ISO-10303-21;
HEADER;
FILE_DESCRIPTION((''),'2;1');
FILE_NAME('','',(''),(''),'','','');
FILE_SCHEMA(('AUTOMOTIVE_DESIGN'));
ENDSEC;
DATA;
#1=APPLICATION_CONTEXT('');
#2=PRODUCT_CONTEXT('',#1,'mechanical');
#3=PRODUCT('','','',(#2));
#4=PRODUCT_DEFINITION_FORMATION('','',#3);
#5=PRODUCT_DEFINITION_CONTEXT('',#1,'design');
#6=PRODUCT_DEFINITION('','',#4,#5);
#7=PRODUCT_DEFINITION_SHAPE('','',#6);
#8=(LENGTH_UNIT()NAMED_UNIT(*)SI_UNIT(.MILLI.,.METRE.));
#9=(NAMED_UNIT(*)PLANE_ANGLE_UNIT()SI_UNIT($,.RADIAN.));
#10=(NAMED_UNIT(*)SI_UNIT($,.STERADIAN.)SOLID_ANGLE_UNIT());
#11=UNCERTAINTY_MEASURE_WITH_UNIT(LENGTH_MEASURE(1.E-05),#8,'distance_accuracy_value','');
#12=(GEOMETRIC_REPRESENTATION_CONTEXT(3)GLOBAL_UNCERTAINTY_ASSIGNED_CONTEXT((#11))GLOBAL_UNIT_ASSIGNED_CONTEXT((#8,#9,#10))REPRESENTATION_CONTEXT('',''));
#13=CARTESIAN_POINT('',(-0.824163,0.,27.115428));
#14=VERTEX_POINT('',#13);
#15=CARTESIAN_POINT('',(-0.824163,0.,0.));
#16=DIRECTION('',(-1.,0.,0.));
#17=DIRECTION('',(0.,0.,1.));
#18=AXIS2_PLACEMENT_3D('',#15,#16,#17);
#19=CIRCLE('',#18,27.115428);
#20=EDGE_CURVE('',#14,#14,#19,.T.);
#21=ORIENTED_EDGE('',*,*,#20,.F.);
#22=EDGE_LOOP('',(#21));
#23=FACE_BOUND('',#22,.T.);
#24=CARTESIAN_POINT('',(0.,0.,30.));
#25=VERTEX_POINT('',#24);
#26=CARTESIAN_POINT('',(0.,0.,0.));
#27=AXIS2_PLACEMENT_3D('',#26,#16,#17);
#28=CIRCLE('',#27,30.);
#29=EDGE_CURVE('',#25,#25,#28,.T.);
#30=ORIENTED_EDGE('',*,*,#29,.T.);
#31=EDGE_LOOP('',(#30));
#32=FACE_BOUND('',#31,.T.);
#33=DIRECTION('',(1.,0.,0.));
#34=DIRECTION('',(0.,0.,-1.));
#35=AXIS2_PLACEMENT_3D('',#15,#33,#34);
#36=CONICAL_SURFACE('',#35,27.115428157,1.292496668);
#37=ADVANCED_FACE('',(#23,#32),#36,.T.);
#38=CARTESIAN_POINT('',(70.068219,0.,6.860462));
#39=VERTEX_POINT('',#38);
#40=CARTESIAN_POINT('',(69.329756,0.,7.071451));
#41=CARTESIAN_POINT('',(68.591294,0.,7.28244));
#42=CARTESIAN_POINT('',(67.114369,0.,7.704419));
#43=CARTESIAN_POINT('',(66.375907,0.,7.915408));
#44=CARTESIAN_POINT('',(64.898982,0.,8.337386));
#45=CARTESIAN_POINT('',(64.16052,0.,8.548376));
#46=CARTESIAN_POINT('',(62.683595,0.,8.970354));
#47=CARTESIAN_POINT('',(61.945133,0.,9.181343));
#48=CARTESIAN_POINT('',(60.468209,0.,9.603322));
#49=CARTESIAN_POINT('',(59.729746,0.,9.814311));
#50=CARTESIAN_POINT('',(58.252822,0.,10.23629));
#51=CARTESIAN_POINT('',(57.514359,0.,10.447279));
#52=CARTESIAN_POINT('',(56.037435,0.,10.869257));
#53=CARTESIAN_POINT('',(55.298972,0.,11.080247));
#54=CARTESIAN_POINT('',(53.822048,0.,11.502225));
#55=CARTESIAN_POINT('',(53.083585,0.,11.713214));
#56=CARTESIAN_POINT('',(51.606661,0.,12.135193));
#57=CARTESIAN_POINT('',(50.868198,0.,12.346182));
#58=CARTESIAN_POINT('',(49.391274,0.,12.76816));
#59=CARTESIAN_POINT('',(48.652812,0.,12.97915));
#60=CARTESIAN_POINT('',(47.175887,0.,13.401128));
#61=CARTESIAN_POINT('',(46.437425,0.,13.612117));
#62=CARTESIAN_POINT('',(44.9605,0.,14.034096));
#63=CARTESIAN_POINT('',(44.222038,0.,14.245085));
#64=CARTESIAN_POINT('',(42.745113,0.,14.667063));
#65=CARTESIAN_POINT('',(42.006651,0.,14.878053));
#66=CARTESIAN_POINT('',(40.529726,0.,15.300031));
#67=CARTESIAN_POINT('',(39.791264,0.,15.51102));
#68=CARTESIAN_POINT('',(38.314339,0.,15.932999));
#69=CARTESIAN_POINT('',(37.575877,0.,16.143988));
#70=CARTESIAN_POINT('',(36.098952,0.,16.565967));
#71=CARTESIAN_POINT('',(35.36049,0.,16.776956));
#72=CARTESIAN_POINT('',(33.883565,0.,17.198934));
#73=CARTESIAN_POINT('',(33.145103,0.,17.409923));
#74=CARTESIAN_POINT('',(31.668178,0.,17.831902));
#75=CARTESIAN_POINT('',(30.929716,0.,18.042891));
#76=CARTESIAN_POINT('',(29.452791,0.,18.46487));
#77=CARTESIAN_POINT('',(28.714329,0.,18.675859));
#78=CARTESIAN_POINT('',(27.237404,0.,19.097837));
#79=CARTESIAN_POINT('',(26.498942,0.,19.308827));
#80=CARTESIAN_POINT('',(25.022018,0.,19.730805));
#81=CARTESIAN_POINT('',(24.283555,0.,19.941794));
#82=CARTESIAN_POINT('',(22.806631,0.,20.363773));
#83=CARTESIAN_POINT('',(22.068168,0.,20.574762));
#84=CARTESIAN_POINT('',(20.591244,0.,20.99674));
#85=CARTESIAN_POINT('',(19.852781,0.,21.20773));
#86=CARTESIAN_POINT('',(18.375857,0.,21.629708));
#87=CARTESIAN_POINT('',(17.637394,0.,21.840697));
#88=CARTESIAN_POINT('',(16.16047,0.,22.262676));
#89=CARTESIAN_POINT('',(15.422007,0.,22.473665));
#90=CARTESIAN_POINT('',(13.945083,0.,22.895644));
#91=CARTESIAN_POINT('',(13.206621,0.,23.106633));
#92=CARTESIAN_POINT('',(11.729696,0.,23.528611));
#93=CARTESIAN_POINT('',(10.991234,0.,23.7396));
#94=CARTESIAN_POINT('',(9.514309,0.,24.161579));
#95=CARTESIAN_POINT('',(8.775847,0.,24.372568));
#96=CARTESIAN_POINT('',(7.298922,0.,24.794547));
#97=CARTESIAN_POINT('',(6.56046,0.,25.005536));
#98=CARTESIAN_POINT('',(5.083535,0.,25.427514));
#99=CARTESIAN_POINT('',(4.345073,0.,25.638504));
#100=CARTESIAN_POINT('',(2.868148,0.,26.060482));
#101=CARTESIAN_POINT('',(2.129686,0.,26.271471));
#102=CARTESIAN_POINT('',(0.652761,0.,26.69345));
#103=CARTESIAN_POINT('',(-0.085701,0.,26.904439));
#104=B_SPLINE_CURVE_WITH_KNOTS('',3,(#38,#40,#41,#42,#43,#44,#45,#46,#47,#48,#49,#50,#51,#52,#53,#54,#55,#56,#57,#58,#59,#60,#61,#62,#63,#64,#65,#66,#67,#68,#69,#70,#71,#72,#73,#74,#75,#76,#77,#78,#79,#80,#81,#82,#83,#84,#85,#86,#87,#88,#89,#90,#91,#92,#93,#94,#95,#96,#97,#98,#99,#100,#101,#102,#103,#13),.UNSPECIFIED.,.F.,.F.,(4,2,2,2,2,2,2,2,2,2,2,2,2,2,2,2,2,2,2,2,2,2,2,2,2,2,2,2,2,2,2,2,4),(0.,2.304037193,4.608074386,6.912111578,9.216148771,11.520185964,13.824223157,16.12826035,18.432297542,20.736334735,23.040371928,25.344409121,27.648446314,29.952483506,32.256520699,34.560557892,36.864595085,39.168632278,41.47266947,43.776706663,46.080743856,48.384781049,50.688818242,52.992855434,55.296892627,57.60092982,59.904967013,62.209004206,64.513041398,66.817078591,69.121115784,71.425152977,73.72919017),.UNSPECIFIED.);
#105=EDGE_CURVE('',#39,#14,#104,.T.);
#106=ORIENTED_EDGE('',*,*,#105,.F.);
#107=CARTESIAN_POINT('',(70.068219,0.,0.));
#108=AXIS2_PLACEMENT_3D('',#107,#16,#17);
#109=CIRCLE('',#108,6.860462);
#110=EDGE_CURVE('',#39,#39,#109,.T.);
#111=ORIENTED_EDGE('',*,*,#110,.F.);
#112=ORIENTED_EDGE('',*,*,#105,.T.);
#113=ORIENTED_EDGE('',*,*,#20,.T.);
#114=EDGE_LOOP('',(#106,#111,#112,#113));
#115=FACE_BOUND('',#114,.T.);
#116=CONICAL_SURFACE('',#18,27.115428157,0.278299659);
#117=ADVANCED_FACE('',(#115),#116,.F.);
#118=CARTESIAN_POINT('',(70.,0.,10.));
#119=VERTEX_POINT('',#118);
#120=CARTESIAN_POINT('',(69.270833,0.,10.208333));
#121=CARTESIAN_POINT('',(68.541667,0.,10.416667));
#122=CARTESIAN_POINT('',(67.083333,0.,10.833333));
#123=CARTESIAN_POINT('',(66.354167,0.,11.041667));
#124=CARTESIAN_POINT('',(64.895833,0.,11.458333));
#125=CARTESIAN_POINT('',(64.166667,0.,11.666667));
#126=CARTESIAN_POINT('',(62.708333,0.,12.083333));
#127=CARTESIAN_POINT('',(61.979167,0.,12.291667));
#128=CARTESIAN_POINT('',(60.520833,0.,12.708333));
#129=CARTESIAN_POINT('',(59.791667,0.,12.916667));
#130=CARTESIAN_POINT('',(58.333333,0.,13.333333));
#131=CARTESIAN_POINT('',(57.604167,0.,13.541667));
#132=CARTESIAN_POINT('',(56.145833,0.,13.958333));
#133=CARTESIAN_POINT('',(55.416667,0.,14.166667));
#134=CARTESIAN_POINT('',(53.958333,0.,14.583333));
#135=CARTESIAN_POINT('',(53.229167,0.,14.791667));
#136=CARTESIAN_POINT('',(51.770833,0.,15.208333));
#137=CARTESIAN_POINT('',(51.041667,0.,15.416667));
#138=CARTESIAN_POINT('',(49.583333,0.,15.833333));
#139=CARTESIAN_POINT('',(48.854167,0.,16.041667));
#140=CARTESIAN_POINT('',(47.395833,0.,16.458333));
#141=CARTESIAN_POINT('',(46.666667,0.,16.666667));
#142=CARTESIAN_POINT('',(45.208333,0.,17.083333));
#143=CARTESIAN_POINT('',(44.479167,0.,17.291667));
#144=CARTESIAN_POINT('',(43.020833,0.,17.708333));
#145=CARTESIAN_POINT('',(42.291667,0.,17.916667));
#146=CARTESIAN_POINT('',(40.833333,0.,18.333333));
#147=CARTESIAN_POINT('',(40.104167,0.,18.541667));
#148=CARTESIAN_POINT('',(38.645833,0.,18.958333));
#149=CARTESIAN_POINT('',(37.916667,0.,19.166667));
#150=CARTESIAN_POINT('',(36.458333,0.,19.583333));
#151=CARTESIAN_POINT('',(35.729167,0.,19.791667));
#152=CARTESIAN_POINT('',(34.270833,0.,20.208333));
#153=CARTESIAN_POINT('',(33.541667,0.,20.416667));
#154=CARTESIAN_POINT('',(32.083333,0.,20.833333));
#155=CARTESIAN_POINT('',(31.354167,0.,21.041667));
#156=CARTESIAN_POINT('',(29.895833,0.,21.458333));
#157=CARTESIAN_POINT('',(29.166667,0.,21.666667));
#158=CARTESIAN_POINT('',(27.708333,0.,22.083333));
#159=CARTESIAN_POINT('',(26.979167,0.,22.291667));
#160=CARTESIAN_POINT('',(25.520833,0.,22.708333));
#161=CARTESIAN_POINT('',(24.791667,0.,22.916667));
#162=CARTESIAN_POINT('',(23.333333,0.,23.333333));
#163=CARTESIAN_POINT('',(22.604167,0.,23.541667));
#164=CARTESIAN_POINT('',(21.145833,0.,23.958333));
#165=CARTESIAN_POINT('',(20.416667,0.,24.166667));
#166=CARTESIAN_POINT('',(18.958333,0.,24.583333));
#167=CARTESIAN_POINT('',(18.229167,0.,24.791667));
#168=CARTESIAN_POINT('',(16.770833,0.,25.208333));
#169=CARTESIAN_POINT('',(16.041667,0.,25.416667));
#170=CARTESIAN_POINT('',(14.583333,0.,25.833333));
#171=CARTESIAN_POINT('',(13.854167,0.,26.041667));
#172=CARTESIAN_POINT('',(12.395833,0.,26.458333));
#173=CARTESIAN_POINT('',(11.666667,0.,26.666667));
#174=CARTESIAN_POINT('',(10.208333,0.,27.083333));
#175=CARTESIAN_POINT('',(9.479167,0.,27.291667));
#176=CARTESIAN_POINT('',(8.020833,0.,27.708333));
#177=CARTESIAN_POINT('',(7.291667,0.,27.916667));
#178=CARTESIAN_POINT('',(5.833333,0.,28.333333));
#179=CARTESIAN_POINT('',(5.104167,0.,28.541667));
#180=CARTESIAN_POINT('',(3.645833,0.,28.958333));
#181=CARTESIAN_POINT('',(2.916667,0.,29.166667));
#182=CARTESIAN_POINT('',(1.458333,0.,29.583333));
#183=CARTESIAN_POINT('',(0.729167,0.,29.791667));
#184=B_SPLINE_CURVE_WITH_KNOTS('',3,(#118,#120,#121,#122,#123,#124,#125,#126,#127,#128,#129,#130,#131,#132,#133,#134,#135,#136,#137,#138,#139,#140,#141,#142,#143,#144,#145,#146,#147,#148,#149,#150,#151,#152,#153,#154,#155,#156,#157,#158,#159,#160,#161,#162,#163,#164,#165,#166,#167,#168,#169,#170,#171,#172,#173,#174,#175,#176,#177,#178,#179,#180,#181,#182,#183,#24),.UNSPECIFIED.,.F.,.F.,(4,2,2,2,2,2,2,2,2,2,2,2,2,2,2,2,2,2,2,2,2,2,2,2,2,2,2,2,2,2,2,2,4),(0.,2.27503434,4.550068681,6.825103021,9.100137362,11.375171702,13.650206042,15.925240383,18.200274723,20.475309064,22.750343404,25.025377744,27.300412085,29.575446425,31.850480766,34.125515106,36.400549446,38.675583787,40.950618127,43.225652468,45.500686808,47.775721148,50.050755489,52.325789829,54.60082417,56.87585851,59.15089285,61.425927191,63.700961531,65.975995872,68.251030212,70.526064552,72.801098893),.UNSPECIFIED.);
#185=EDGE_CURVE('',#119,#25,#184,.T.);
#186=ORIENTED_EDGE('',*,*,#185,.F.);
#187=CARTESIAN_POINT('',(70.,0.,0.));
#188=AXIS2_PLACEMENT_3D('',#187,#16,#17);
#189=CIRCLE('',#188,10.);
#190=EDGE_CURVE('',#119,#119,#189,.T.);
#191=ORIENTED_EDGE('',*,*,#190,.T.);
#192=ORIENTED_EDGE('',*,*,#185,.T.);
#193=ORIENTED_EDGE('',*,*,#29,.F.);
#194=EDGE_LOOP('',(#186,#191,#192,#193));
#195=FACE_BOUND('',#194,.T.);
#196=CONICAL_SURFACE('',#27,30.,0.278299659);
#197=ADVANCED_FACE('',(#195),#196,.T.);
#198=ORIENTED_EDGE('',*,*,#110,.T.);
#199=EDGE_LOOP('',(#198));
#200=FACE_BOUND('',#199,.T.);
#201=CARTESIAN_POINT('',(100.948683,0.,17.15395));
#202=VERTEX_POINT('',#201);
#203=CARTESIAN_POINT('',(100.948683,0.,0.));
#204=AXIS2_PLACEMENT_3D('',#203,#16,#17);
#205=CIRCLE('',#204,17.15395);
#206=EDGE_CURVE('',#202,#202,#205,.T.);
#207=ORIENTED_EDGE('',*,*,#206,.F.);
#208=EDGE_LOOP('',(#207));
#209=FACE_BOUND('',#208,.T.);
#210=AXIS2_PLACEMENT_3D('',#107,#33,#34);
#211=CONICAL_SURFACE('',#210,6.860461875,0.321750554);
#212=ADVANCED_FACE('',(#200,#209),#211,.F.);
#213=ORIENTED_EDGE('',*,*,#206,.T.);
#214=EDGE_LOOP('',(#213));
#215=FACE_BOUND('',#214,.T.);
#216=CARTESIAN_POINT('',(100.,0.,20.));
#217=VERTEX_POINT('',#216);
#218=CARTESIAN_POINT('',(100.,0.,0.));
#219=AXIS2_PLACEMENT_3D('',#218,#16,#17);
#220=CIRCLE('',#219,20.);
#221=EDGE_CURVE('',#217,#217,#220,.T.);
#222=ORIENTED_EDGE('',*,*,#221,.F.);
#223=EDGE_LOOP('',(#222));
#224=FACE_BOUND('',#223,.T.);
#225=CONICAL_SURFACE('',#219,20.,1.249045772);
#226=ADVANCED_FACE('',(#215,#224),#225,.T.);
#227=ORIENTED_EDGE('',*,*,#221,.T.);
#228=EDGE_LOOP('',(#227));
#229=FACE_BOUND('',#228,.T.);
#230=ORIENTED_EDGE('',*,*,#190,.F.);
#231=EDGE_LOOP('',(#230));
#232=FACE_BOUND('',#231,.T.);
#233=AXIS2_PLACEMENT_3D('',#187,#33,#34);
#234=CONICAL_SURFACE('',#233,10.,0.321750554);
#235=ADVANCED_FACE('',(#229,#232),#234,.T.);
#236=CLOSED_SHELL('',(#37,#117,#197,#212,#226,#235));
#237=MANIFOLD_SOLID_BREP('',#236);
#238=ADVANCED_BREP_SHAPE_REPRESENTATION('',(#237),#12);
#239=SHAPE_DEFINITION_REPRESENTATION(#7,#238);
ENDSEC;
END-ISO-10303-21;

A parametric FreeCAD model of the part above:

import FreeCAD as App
import Part
import Sketcher
Q = App.Units.Quantity

doc = App.newDocument("Part")
params = doc.addObject("Spreadsheet::Sheet", "Params")
for row, (alias, value) in enumerate([
    ("sketch1_length", "3 mm"),
    ("revolution_angle", "360 deg"),
], start=1):
    params.set(f"A{row}", alias)
    params.set(f"B{row}", "=" + value)
    params.setAlias(f"B{row}", alias)

body = doc.addObject("PartDesign::Body", "Body")

sketch1 = doc.addObject("Sketcher::SketchObject", "Sketch")
body.addObject(sketch1)
sketch1.AttachmentSupport = (doc.XY_Plane, [""])
sketch1.MapMode = "FlatFace"
sketch1.addGeometry([
    Part.LineSegment(App.Vector(70, 10, 0), App.Vector(0, 30, 0)),
    Part.LineSegment(App.Vector(0, 30, 0), App.Vector(-0.824163, 27.115428, 0)),
    Part.LineSegment(App.Vector(-0.824163, 27.115428, 0), App.Vector(70.068219, 6.860462, 0)),
    Part.LineSegment(App.Vector(70.068219, 6.860462, 0), App.Vector(100.948683, 17.15395, 0)),
    Part.LineSegment(App.Vector(100.948683, 17.15395, 0), App.Vector(100, 20, 0)),
    Part.LineSegment(App.Vector(100, 20, 0), App.Vector(70, 10, 0)),
], False)
sketch1.addConstraint([
    Sketcher.Constraint("Coincident", 0, 2, 1, 1),
    Sketcher.Constraint("Coincident", 1, 2, 2, 1),
    Sketcher.Constraint("Coincident", 2, 2, 3, 1),
    Sketcher.Constraint("Coincident", 3, 2, 4, 1),
    Sketcher.Constraint("Coincident", 4, 2, 5, 1),
    Sketcher.Constraint("Coincident", 5, 2, 0, 1),
    Sketcher.Constraint("PointOnObject", 0, 2, -2),
    Sketcher.Constraint("Perpendicular", 0, 1),
    Sketcher.Constraint("Perpendicular", 1, 2),
    Sketcher.Constraint("Perpendicular", 3, 4),
    Sketcher.Constraint("Perpendicular", 4, 5),
    Sketcher.Constraint("Equal", 1, 4),
    Sketcher.Constraint("Distance", 1, Q("3 mm")),
    Sketcher.Constraint("DistanceY", -1, 1, 0, 2, Q("30 mm")),
    Sketcher.Constraint("DistanceX", -1, 1, 4, 2, Q("100 mm")),
    Sketcher.Constraint("DistanceY", -1, 1, 4, 2, Q("20 mm")),
    Sketcher.Constraint("DistanceX", -1, 1, 5, 2, Q("70 mm")),
    Sketcher.Constraint("DistanceY", -1, 1, 5, 2, Q("10 mm")),
])
sketch1.setExpression("Constraints[12]", "Params.sketch1_length")
revolution = doc.addObject("PartDesign::Revolution", "Revolution")
body.addObject(revolution)
revolution.Profile = sketch1
revolution.ReferenceAxis = (sketch1, ["H_Axis"])
revolution.setExpression("Angle", "Params.revolution_angle")

doc.recompute()
